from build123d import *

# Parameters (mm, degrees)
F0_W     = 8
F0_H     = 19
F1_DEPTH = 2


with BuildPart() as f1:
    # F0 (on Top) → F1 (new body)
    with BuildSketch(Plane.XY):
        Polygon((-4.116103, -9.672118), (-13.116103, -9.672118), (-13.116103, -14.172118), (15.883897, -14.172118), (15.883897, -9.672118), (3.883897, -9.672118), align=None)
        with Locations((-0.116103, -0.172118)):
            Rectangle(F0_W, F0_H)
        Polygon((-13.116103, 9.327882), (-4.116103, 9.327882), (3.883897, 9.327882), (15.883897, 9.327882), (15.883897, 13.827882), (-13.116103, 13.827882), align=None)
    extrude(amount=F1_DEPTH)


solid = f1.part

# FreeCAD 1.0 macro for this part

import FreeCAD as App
import Part
import Sketcher
from FreeCAD import Vector
Q = App.Units.Quantity

doc = App.newDocument("Part")
params = doc.addObject("Spreadsheet::Sheet", "Params")
for row, (alias, value) in enumerate([
    ("sketch1_width", "29 mm"),
    ("sketch1_width2", "12 mm"),
    ("sketch1_width3", "9 mm"),
    ("sketch1_height", "19 mm"),
    ("sketch1_height2", "4.5 mm"),
    ("pad1_length", "2 mm"),
], start=1):
    params.set(f"A{row}", alias)
    params.set(f"B{row}", "=" + value)
    params.setAlias(f"B{row}", alias)

body = doc.addObject("PartDesign::Body", "Body")

sketch1 = body.newObject("Sketcher::SketchObject", "Sketch")
sketch1.AttachmentSupport = (doc.getObject("XY_Plane"), [""])
sketch1.MapMode = "FlatFace"
sketch1.addGeometry([
    Part.LineSegment(Vector(-13.1, -9.7, 0), Vector(-13.1, -14.2, 0)),
    Part.LineSegment(Vector(-13.1, -14.2, 0), Vector(15.9, -14.2, 0)),
    Part.LineSegment(Vector(15.9, -14.2, 0), Vector(15.9, -9.7, 0)),
    Part.LineSegment(Vector(15.9, -9.7, 0), Vector(3.9, -9.7, 0)),
    Part.LineSegment(Vector(3.9, -9.7, 0), Vector(3.9, 9.3, 0)),
    Part.LineSegment(Vector(3.9, 9.3, 0), Vector(15.9, 9.3, 0)),
    Part.LineSegment(Vector(15.9, 9.3, 0), Vector(15.9, 13.8, 0)),
    Part.LineSegment(Vector(15.9, 13.8, 0), Vector(-13.1, 13.8, 0)),
    Part.LineSegment(Vector(-13.1, 13.8, 0), Vector(-13.1, 9.3, 0)),
    Part.LineSegment(Vector(-13.1, 9.3, 0), Vector(-4.1, 9.3, 0)),
    Part.LineSegment(Vector(-4.1, 9.3, 0), Vector(-4.1, -9.7, 0)),
    Part.LineSegment(Vector(-4.1, -9.7, 0), Vector(-13.1, -9.7, 0)),
], False)
sketch1.addConstraint([
    Sketcher.Constraint("Coincident", 0, 2, 1, 1),
    Sketcher.Constraint("Coincident", 1, 2, 2, 1),
    Sketcher.Constraint("Coincident", 2, 2, 3, 1),
    Sketcher.Constraint("Coincident", 3, 2, 4, 1),
    Sketcher.Constraint("Coincident", 4, 2, 5, 1),
    Sketcher.Constraint("Coincident", 5, 2, 6, 1),
    Sketcher.Constraint("Coincident", 6, 2, 7, 1),
    Sketcher.Constraint("Coincident", 7, 2, 8, 1),
    Sketcher.Constraint("Coincident", 8, 2, 9, 1),
    Sketcher.Constraint("Coincident", 9, 2, 10, 1),
    Sketcher.Constraint("Coincident", 10, 2, 11, 1),
    Sketcher.Constraint("Coincident", 11, 2, 0, 1),
    Sketcher.Constraint("Vertical", 0),
    Sketcher.Constraint("Horizontal", 1),
    Sketcher.Constraint("Vertical", 2),
    Sketcher.Constraint("Horizontal", 3),
    Sketcher.Constraint("Vertical", 4),
    Sketcher.Constraint("Horizontal", 5),
    Sketcher.Constraint("Vertical", 6),
    Sketcher.Constraint("Horizontal", 7),
    Sketcher.Constraint("Vertical", 8),
    Sketcher.Constraint("Horizontal", 9),
    Sketcher.Constraint("Vertical", 10),
    Sketcher.Constraint("Horizontal", 11),
    Sketcher.Constraint("Horizontal", 5, 2, 8, 2),
    Sketcher.Constraint("Horizontal", 3, 2, 10, 2),
    Sketcher.Constraint("Vertical", 2, 2, 5, 2),
    Sketcher.Constraint("Vertical", 0, 2, 7, 2),
    Sketcher.Constraint("Equal", 2, 6),
    Sketcher.Constraint("DistanceX", 1, 1, 1, 2, Q("29 mm")),
    Sketcher.Constraint("DistanceX", 3, 2, 3, 1, Q("12 mm")),
    Sketcher.Constraint("DistanceX", 9, 1, 9, 2, Q("9 mm")),
    Sketcher.Constraint("DistanceY", 4, 1, 4, 2, Q("19 mm")),
    Sketcher.Constraint("DistanceY", 0, 2, 0, 1, Q("4.5 mm")),
    Sketcher.Constraint("DistanceX", 0, 2, -1, 1, Q("13.116103 mm")),
    Sketcher.Constraint("DistanceY", 0, 2, -1, 1, Q("14.172118 mm")),
])
sketch1.setExpression("Constraints[29]", "Params.sketch1_width")
sketch1.setExpression("Constraints[30]", "Params.sketch1_width2")
sketch1.setExpression("Constraints[31]", "Params.sketch1_width3")
sketch1.setExpression("Constraints[32]", "Params.sketch1_height")
sketch1.setExpression("Constraints[33]", "Params.sketch1_height2")
pad1 = body.newObject("PartDesign::Pad", "Pad")
pad1.Profile = sketch1
pad1.setExpression("Length", "Params.pad1_length")

doc.recompute()
